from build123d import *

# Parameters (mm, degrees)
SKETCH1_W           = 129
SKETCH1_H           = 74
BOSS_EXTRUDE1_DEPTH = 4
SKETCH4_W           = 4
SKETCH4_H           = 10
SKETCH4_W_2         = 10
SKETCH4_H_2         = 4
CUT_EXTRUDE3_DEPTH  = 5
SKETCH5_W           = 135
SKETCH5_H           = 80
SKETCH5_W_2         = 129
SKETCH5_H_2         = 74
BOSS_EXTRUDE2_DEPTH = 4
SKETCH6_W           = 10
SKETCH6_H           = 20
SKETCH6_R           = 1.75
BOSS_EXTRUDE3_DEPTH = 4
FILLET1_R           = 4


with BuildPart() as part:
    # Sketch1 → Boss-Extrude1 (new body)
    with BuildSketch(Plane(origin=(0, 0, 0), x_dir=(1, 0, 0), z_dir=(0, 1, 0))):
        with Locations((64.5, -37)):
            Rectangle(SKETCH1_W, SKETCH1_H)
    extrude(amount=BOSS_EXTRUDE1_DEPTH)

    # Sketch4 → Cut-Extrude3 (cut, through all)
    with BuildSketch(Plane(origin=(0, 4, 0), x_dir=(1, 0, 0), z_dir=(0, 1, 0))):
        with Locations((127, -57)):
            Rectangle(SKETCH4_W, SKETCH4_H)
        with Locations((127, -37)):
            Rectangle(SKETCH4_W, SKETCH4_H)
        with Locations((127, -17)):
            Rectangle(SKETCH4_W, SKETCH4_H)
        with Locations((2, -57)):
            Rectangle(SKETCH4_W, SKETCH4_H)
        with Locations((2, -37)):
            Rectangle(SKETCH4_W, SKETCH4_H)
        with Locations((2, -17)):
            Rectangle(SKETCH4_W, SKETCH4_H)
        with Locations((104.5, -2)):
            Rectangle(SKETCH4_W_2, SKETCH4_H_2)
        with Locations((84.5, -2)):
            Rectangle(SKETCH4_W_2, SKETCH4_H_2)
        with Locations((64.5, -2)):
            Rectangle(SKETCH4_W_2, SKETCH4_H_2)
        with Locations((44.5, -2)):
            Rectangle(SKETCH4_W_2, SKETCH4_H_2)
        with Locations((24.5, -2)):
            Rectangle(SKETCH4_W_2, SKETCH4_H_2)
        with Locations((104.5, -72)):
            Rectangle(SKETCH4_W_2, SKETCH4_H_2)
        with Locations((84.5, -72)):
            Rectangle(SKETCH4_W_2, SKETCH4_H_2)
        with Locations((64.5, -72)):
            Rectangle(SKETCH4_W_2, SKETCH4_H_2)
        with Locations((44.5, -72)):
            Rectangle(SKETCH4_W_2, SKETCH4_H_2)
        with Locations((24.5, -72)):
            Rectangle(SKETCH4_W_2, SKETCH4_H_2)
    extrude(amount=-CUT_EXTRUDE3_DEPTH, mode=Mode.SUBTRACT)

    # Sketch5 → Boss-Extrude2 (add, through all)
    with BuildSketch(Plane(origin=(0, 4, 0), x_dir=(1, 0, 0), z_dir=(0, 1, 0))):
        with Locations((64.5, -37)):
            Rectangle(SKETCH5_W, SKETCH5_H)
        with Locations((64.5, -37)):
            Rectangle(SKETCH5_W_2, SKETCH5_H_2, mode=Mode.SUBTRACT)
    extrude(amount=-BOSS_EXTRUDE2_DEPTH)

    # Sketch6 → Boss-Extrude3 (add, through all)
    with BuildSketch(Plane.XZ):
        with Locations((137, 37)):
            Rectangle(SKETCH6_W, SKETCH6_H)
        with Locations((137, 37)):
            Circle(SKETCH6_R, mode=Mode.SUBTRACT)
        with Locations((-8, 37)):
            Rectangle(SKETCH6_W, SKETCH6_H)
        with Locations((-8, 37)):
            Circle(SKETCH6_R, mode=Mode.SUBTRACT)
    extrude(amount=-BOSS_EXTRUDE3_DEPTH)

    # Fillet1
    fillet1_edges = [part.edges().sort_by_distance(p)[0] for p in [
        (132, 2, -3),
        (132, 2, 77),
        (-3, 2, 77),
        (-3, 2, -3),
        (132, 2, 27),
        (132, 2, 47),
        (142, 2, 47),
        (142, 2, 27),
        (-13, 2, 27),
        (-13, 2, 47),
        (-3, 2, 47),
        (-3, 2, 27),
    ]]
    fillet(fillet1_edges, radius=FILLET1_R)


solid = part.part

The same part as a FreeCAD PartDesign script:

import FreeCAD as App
import Part
import Sketcher
Q = App.Units.Quantity


def edges_at(feature, points):
    """Names of the edges that pass closest to the given points."""
    edges = feature.Shape.Edges
    near = lambda p: min(range(len(edges)), key=lambda i: edges[i].distToShape(Part.Vertex(*p))[0])
    return sorted({f"Edge{near(p) + 1}" for p in points})


def add_polygon(sketch, points):
    """Adds a closed chain of lines whose ends are joined by coincident constraints."""
    first, n = sketch.GeometryCount, len(points)
    for a, b in zip(points, points[1:] + points[:1]):
        sketch.addGeometry(Part.LineSegment(App.Vector(*a, 0), App.Vector(*b, 0)), False)
    for i in range(n):
        sketch.addConstraint(Sketcher.Constraint("Coincident", first + i, 2, first + (i + 1) % n, 1))

doc = App.newDocument("Part")
body = doc.addObject("PartDesign::Body", "Body")

# Sketch on XZ plane
sketch1 = doc.addObject("Sketcher::SketchObject", "Sketch")
body.addObject(sketch1)
sketch1.AttachmentSupport = (doc.XZ_Plane, [""])
sketch1.MapMode = "FlatFace"
add_polygon(sketch1, [(0, 0), (0, 74), (129, 74), (129, 0)])  # lines 0-3
sketch1.addConstraint([
    Sketcher.Constraint("Vertical", 0),
    Sketcher.Constraint("Horizontal", 1),
    Sketcher.Constraint("Vertical", 2),
    Sketcher.Constraint("Horizontal", 3),
    Sketcher.Constraint("Coincident", 3, 2, -1, 1),
    Sketcher.Constraint("DistanceX", 1, 1, 1, 2, Q("129 mm")),
    Sketcher.Constraint("DistanceY", 0, 1, 0, 2, Q("74 mm")),
])
pad1 = doc.addObject("PartDesign::Pad", "Pad")
body.addObject(pad1)
pad1.Profile = sketch1
pad1.Length = 4
pad1.Reversed = True

# Sketch on XZ plane
sketch2 = doc.addObject("Sketcher::SketchObject", "Sketch001")
body.addObject(sketch2)
sketch2.AttachmentSupport = (doc.XZ_Plane, [""])
sketch2.MapMode = "FlatFace"
sketch2.AttachmentOffset = App.Placement(App.Vector(0, 0, -4), App.Rotation())
add_polygon(sketch2, [(125, 52), (125, 62), (129, 62), (129, 52)])  # lines 0-3
add_polygon(sketch2, [(125, 32), (125, 42), (129, 42), (129, 32)])  # lines 4-7
add_polygon(sketch2, [(125, 12), (125, 22), (129, 22), (129, 12)])  # lines 8-11
add_polygon(sketch2, [(0, 52), (0, 62), (4, 62), (4, 52)])  # lines 12-15
add_polygon(sketch2, [(0, 32), (0, 42), (4, 42), (4, 32)])  # lines 16-19
add_polygon(sketch2, [(0, 12), (0, 22), (4, 22), (4, 12)])  # lines 20-23
add_polygon(sketch2, [(99.5, 0), (99.5, 4), (109.5, 4), (109.5, 0)])  # lines 24-27
add_polygon(sketch2, [(79.5, 0), (79.5, 4), (89.5, 4), (89.5, 0)])  # lines 28-31
add_polygon(sketch2, [(59.5, 0), (59.5, 4), (69.5, 4), (69.5, 0)])  # lines 32-35
add_polygon(sketch2, [(39.5, 0), (39.5, 4), (49.5, 4), (49.5, 0)])  # lines 36-39
add_polygon(sketch2, [(19.5, 0), (19.5, 4), (29.5, 4), (29.5, 0)])  # lines 40-43
add_polygon(sketch2, [(99.5, 70), (99.5, 74), (109.5, 74), (109.5, 70)])  # lines 44-47
add_polygon(sketch2, [(79.5, 70), (79.5, 74), (89.5, 74), (89.5, 70)])  # lines 48-51
add_polygon(sketch2, [(59.5, 70), (59.5, 74), (69.5, 74), (69.5, 70)])  # lines 52-55
add_polygon(sketch2, [(39.5, 70), (39.5, 74), (49.5, 74), (49.5, 70)])  # lines 56-59
add_polygon(sketch2, [(19.5, 70), (19.5, 74), (29.5, 74), (29.5, 70)])  # lines 60-63
sketch2.addConstraint([
    Sketcher.Constraint("Vertical", 0),
    Sketcher.Constraint("Horizontal", 1),
    Sketcher.Constraint("Vertical", 2),
    Sketcher.Constraint("Horizontal", 3),
    Sketcher.Constraint("Vertical", 4),
    Sketcher.Constraint("Horizontal", 5),
    Sketcher.Constraint("Vertical", 6),
    Sketcher.Constraint("Horizontal", 7),
    Sketcher.Constraint("Vertical", 8),
    Sketcher.Constraint("Horizontal", 9),
    Sketcher.Constraint("Vertical", 10),
    Sketcher.Constraint("Horizontal", 11),
    Sketcher.Constraint("Vertical", 12),
    Sketcher.Constraint("Horizontal", 13),
    Sketcher.Constraint("Vertical", 14),
    Sketcher.Constraint("Horizontal", 15),
    Sketcher.Constraint("Vertical", 16),
    Sketcher.Constraint("Horizontal", 17),
    Sketcher.Constraint("Vertical", 18),
    Sketcher.Constraint("Horizontal", 19),
    Sketcher.Constraint("Vertical", 20),
    Sketcher.Constraint("Horizontal", 21),
    Sketcher.Constraint("Vertical", 22),
    Sketcher.Constraint("Horizontal", 23),
    Sketcher.Constraint("Vertical", 24),
    Sketcher.Constraint("Horizontal", 25),
    Sketcher.Constraint("Vertical", 26),
    Sketcher.Constraint("Horizontal", 27),
    Sketcher.Constraint("Vertical", 28),
    Sketcher.Constraint("Horizontal", 29),
    Sketcher.Constraint("Vertical", 30),
    Sketcher.Constraint("Horizontal", 31),
    Sketcher.Constraint("Vertical", 32),
    Sketcher.Constraint("Horizontal", 33),
    Sketcher.Constraint("Vertical", 34),
    Sketcher.Constraint("Horizontal", 35),
    Sketcher.Constraint("Vertical", 36),
    Sketcher.Constraint("Horizontal", 37),
    Sketcher.Constraint("Vertical", 38),
    Sketcher.Constraint("Horizontal", 39),
    Sketcher.Constraint("Vertical", 40),
    Sketcher.Constraint("Horizontal", 41),
    Sketcher.Constraint("Vertical", 42),
    Sketcher.Constraint("Horizontal", 43),
    Sketcher.Constraint("Vertical", 44),
    Sketcher.Constraint("Horizontal", 45),
    Sketcher.Constraint("Vertical", 46),
    Sketcher.Constraint("Horizontal", 47),
    Sketcher.Constraint("Vertical", 48),
    Sketcher.Constraint("Horizontal", 49),
    Sketcher.Constraint("Vertical", 50),
    Sketcher.Constraint("Horizontal", 51),
    Sketcher.Constraint("Vertical", 52),
    Sketcher.Constraint("Horizontal", 53),
    Sketcher.Constraint("Vertical", 54),
    Sketcher.Constraint("Horizontal", 55),
    Sketcher.Constraint("Vertical", 56),
    Sketcher.Constraint("Horizontal", 57),
    Sketcher.Constraint("Vertical", 58),
    Sketcher.Constraint("Horizontal", 59),
    Sketcher.Constraint("Vertical", 60),
    Sketcher.Constraint("Horizontal", 61),
    Sketcher.Constraint("Vertical", 62),
    Sketcher.Constraint("Horizontal", 63),
    Sketcher.Constraint("PointOnObject", 12, 2, -2),
    Sketcher.Constraint("PointOnObject", 16, 2, -2),
    Sketcher.Constraint("PointOnObject", 20, 2, -2),
    Sketcher.Constraint("PointOnObject", 26, 2, -1),
    Sketcher.Constraint("PointOnObject", 30, 2, -1),
    Sketcher.Constraint("PointOnObject", 34, 2, -1),
    Sketcher.Constraint("PointOnObject", 38, 2, -1),
    Sketcher.Constraint("PointOnObject", 42, 2, -1),
    Sketcher.Constraint("Horizontal", 1, 2, 12, 2),
    Sketcher.Constraint("Horizontal", 3, 2, 14, 2),
    Sketcher.Constraint("Horizontal", 5, 2, 16, 2),
    Sketcher.Constraint("Horizontal", 7, 2, 18, 2),
    Sketcher.Constraint("Horizontal", 9, 2, 20, 2),
    Sketcher.Constraint("Horizontal", 11, 2, 22, 2),
    Sketcher.Constraint("Horizontal", 25, 2, 28, 2),
    Sketcher.Constraint("Horizontal", 29, 2, 32, 2),
    Sketcher.Constraint("Horizontal", 33, 2, 36, 2),
    Sketcher.Constraint("Horizontal", 37, 2, 40, 2),
    Sketcher.Constraint("Horizontal", 45, 2, 48, 2),
    Sketcher.Constraint("Horizontal", 47, 2, 50, 2),
    Sketcher.Constraint("Horizontal", 49, 2, 52, 2),
    Sketcher.Constraint("Horizontal", 51, 2, 54, 2),
    Sketcher.Constraint("Horizontal", 53, 2, 56, 2),
    Sketcher.Constraint("Horizontal", 55, 2, 58, 2),
    Sketcher.Constraint("Horizontal", 57, 2, 60, 2),
    Sketcher.Constraint("Horizontal", 59, 2, 62, 2),
    Sketcher.Constraint("Vertical", 3, 2, 4, 2),
    Sketcher.Constraint("Vertical", 2, 2, 5, 2),
    Sketcher.Constraint("Vertical", 7, 2, 8, 2),
    Sketcher.Constraint("Vertical", 6, 2, 9, 2),
    Sketcher.Constraint("Vertical", 14, 2, 17, 2),
    Sketcher.Constraint("Vertical", 18, 2, 21, 2),
    Sketcher.Constraint("Vertical", 27, 2, 44, 2),
    Sketcher.Constraint("Vertical", 26, 2, 45, 2),
    Sketcher.Constraint("Vertical", 31, 2, 48, 2),
    Sketcher.Constraint("Vertical", 30, 2, 49, 2),
    Sketcher.Constraint("Vertical", 35, 2, 52, 2),
    Sketcher.Constraint("Vertical", 34, 2, 53, 2),
    Sketcher.Constraint("Vertical", 39, 2, 56, 2),
    Sketcher.Constraint("Vertical", 38, 2, 57, 2),
    Sketcher.Constraint("Vertical", 43, 2, 60, 2),
    Sketcher.Constraint("Vertical", 42, 2, 61, 2),
    Sketcher.Constraint("Equal", 11, 13),
    Sketcher.Constraint("Equal", 27, 29),
    Sketcher.Constraint("Equal", 31, 33),
    Sketcher.Constraint("Equal", 35, 37),
    Sketcher.Constraint("Equal", 39, 41),
    Sketcher.Constraint("Equal", 63, 0),
    Sketcher.Constraint("Equal", 2, 4),
    Sketcher.Constraint("Equal", 6, 8),
    Sketcher.Constraint("Equal", 23, 24),
    Sketcher.Constraint("Equal", 42, 44),
    Sketcher.Constraint("DistanceX", 1, 1, 1, 2, Q("4 mm")),
    Sketcher.Constraint("DistanceX", 25, 1, 25, 2, Q("10 mm")),
    Sketcher.Constraint("DistanceX", -1, 1, 0, 2, Q("125 mm")),
    Sketcher.Constraint("DistanceY", -1, 1, 0, 2, Q("62 mm")),
    Sketcher.Constraint("DistanceY", -1, 1, 4, 2, Q("42 mm")),
    Sketcher.Constraint("DistanceY", -1, 1, 8, 2, Q("22 mm")),
    Sketcher.Constraint("DistanceY", -1, 1, 44, 2, Q("74 mm")),
    Sketcher.Constraint("DistanceX", -1, 1, 24, 2, Q("99.5 mm")),
    Sketcher.Constraint("DistanceX", -1, 1, 28, 2, Q("79.5 mm")),
    Sketcher.Constraint("DistanceX", -1, 1, 32, 2, Q("59.5 mm")),
    Sketcher.Constraint("DistanceX", -1, 1, 36, 2, Q("39.5 mm")),
    Sketcher.Constraint("DistanceX", -1, 1, 40, 2, Q("19.5 mm")),
])
pocket1 = doc.addObject("PartDesign::Pocket", "Pocket")
body.addObject(pocket1)
pocket1.Profile = sketch2
pocket1.Type = "ThroughAll"
pocket1.Reversed = True

# Sketch on XZ plane
sketch3 = doc.addObject("Sketcher::SketchObject", "Sketch002")
body.addObject(sketch3)
sketch3.AttachmentSupport = (doc.XZ_Plane, [""])
sketch3.MapMode = "FlatFace"
sketch3.AttachmentOffset = App.Placement(App.Vector(0, 0, -4), App.Rotation())
add_polygon(sketch3, [(-3, -3), (-3, 77), (132, 77), (132, -3)])  # lines 0-3
add_polygon(sketch3, [(129, 74), (0, 74), (0, 0), (129, 0)])  # lines 4-7
sketch3.addConstraint([
    Sketcher.Constraint("Vertical", 0),
    Sketcher.Constraint("Horizontal", 1),
    Sketcher.Constraint("Vertical", 2),
    Sketcher.Constraint("Horizontal", 3),
    Sketcher.Constraint("Horizontal", 4),
    Sketcher.Constraint("Vertical", 5),
    Sketcher.Constraint("Horizontal", 6),
    Sketcher.Constraint("Vertical", 7),
    Sketcher.Constraint("Coincident", 5, 2, -1, 1),
    Sketcher.Constraint("DistanceX", 1, 1, 1, 2, Q("135 mm")),
    Sketcher.Constraint("DistanceX", 4, 2, 4, 1, Q("129 mm")),
    Sketcher.Constraint("DistanceY", 0, 1, 0, 2, Q("80 mm")),
    Sketcher.Constraint("DistanceY", 5, 2, 5, 1, Q("74 mm")),
    Sketcher.Constraint("DistanceX", 0, 2, -1, 1, Q("3 mm")),
    Sketcher.Constraint("DistanceY", -1, 1, 0, 2, Q("77 mm")),
])
pad2 = doc.addObject("PartDesign::Pad", "Pad001")
body.addObject(pad2)
pad2.Profile = sketch3
pad2.Type = "UpToLast"

# Sketch on XZ plane
sketch4 = doc.addObject("Sketcher::SketchObject", "Sketch003")
body.addObject(sketch4)
sketch4.AttachmentSupport = (doc.XZ_Plane, [""])
sketch4.MapMode = "FlatFace"
add_polygon(sketch4, [(132, 47), (132, 27), (142, 27), (142, 47)])  # lines 0-3
sketch4.addGeometry(Part.Circle(App.Vector(137, 37, 0), App.Vector(0, 0, 1), 1.8), False)  # 4
add_polygon(sketch4, [(-13, 47), (-13, 27), (-3, 27), (-3, 47)])  # lines 5-8
sketch4.addGeometry(Part.Circle(App.Vector(-8, 37, 0), App.Vector(0, 0, 1), 1.8), False)  # 9
sketch4.addConstraint([
    Sketcher.Constraint("Vertical", 0),
    Sketcher.Constraint("Horizontal", 1),
    Sketcher.Constraint("Vertical", 2),
    Sketcher.Constraint("Horizontal", 3),
    Sketcher.Constraint("Vertical", 5),
    Sketcher.Constraint("Horizontal", 6),
    Sketcher.Constraint("Vertical", 7),
    Sketcher.Constraint("Horizontal", 8),
    Sketcher.Constraint("Equal", 4, 9),
    Sketcher.Constraint("Horizontal", 4, 3, 9, 3),
    Sketcher.Constraint("Horizontal", 1, 2, 5, 2),
    Sketcher.Constraint("Horizontal", 3, 2, 7, 2),
    Sketcher.Constraint("Equal", 3, 6),
    Sketcher.Constraint("Diameter", 4, Q("3.5 mm")),
    Sketcher.Constraint("DistanceX", 1, 1, 1, 2, Q("10 mm")),
    Sketcher.Constraint("DistanceY", 0, 2, 0, 1, Q("20 mm")),
    Sketcher.Constraint("DistanceX", -1, 1, 4, 3, Q("137 mm")),
    Sketcher.Constraint("DistanceY", -1, 1, 4, 3, Q("37 mm")),
    Sketcher.Constraint("DistanceX", 9, 3, -1, 1, Q("8 mm")),
    Sketcher.Constraint("DistanceX", -1, 1, 0, 2, Q("132 mm")),
    Sketcher.Constraint("DistanceY", -1, 1, 0, 2, Q("27 mm")),
    Sketcher.Constraint("DistanceX", 5, 2, -1, 1, Q("13 mm")),
])
pad3 = doc.addObject("PartDesign::Pad", "Pad002")
body.addObject(pad3)
pad3.Profile = sketch4
pad3.Type = "UpToLast"
pad3.Reversed = True
doc.recompute()

fillet = doc.addObject("PartDesign::Fillet", "Fillet")
body.addObject(fillet)
fillet.Base = (pad3, edges_at(pad3, [
    (132, 2, -3),
    (132, 2, 77),
    (-3, 2, 77),
    (-3, 2, -3),
    (132, 2, 27),
    (132, 2, 47),
    (142, 2, 47),
    (142, 2, 27),
    (-13, 2, 27),
    (-13, 2, 47),
    (-3, 2, 47),
    (-3, 2, 27),
]))
fillet.Radius = 4

doc.recompute()
